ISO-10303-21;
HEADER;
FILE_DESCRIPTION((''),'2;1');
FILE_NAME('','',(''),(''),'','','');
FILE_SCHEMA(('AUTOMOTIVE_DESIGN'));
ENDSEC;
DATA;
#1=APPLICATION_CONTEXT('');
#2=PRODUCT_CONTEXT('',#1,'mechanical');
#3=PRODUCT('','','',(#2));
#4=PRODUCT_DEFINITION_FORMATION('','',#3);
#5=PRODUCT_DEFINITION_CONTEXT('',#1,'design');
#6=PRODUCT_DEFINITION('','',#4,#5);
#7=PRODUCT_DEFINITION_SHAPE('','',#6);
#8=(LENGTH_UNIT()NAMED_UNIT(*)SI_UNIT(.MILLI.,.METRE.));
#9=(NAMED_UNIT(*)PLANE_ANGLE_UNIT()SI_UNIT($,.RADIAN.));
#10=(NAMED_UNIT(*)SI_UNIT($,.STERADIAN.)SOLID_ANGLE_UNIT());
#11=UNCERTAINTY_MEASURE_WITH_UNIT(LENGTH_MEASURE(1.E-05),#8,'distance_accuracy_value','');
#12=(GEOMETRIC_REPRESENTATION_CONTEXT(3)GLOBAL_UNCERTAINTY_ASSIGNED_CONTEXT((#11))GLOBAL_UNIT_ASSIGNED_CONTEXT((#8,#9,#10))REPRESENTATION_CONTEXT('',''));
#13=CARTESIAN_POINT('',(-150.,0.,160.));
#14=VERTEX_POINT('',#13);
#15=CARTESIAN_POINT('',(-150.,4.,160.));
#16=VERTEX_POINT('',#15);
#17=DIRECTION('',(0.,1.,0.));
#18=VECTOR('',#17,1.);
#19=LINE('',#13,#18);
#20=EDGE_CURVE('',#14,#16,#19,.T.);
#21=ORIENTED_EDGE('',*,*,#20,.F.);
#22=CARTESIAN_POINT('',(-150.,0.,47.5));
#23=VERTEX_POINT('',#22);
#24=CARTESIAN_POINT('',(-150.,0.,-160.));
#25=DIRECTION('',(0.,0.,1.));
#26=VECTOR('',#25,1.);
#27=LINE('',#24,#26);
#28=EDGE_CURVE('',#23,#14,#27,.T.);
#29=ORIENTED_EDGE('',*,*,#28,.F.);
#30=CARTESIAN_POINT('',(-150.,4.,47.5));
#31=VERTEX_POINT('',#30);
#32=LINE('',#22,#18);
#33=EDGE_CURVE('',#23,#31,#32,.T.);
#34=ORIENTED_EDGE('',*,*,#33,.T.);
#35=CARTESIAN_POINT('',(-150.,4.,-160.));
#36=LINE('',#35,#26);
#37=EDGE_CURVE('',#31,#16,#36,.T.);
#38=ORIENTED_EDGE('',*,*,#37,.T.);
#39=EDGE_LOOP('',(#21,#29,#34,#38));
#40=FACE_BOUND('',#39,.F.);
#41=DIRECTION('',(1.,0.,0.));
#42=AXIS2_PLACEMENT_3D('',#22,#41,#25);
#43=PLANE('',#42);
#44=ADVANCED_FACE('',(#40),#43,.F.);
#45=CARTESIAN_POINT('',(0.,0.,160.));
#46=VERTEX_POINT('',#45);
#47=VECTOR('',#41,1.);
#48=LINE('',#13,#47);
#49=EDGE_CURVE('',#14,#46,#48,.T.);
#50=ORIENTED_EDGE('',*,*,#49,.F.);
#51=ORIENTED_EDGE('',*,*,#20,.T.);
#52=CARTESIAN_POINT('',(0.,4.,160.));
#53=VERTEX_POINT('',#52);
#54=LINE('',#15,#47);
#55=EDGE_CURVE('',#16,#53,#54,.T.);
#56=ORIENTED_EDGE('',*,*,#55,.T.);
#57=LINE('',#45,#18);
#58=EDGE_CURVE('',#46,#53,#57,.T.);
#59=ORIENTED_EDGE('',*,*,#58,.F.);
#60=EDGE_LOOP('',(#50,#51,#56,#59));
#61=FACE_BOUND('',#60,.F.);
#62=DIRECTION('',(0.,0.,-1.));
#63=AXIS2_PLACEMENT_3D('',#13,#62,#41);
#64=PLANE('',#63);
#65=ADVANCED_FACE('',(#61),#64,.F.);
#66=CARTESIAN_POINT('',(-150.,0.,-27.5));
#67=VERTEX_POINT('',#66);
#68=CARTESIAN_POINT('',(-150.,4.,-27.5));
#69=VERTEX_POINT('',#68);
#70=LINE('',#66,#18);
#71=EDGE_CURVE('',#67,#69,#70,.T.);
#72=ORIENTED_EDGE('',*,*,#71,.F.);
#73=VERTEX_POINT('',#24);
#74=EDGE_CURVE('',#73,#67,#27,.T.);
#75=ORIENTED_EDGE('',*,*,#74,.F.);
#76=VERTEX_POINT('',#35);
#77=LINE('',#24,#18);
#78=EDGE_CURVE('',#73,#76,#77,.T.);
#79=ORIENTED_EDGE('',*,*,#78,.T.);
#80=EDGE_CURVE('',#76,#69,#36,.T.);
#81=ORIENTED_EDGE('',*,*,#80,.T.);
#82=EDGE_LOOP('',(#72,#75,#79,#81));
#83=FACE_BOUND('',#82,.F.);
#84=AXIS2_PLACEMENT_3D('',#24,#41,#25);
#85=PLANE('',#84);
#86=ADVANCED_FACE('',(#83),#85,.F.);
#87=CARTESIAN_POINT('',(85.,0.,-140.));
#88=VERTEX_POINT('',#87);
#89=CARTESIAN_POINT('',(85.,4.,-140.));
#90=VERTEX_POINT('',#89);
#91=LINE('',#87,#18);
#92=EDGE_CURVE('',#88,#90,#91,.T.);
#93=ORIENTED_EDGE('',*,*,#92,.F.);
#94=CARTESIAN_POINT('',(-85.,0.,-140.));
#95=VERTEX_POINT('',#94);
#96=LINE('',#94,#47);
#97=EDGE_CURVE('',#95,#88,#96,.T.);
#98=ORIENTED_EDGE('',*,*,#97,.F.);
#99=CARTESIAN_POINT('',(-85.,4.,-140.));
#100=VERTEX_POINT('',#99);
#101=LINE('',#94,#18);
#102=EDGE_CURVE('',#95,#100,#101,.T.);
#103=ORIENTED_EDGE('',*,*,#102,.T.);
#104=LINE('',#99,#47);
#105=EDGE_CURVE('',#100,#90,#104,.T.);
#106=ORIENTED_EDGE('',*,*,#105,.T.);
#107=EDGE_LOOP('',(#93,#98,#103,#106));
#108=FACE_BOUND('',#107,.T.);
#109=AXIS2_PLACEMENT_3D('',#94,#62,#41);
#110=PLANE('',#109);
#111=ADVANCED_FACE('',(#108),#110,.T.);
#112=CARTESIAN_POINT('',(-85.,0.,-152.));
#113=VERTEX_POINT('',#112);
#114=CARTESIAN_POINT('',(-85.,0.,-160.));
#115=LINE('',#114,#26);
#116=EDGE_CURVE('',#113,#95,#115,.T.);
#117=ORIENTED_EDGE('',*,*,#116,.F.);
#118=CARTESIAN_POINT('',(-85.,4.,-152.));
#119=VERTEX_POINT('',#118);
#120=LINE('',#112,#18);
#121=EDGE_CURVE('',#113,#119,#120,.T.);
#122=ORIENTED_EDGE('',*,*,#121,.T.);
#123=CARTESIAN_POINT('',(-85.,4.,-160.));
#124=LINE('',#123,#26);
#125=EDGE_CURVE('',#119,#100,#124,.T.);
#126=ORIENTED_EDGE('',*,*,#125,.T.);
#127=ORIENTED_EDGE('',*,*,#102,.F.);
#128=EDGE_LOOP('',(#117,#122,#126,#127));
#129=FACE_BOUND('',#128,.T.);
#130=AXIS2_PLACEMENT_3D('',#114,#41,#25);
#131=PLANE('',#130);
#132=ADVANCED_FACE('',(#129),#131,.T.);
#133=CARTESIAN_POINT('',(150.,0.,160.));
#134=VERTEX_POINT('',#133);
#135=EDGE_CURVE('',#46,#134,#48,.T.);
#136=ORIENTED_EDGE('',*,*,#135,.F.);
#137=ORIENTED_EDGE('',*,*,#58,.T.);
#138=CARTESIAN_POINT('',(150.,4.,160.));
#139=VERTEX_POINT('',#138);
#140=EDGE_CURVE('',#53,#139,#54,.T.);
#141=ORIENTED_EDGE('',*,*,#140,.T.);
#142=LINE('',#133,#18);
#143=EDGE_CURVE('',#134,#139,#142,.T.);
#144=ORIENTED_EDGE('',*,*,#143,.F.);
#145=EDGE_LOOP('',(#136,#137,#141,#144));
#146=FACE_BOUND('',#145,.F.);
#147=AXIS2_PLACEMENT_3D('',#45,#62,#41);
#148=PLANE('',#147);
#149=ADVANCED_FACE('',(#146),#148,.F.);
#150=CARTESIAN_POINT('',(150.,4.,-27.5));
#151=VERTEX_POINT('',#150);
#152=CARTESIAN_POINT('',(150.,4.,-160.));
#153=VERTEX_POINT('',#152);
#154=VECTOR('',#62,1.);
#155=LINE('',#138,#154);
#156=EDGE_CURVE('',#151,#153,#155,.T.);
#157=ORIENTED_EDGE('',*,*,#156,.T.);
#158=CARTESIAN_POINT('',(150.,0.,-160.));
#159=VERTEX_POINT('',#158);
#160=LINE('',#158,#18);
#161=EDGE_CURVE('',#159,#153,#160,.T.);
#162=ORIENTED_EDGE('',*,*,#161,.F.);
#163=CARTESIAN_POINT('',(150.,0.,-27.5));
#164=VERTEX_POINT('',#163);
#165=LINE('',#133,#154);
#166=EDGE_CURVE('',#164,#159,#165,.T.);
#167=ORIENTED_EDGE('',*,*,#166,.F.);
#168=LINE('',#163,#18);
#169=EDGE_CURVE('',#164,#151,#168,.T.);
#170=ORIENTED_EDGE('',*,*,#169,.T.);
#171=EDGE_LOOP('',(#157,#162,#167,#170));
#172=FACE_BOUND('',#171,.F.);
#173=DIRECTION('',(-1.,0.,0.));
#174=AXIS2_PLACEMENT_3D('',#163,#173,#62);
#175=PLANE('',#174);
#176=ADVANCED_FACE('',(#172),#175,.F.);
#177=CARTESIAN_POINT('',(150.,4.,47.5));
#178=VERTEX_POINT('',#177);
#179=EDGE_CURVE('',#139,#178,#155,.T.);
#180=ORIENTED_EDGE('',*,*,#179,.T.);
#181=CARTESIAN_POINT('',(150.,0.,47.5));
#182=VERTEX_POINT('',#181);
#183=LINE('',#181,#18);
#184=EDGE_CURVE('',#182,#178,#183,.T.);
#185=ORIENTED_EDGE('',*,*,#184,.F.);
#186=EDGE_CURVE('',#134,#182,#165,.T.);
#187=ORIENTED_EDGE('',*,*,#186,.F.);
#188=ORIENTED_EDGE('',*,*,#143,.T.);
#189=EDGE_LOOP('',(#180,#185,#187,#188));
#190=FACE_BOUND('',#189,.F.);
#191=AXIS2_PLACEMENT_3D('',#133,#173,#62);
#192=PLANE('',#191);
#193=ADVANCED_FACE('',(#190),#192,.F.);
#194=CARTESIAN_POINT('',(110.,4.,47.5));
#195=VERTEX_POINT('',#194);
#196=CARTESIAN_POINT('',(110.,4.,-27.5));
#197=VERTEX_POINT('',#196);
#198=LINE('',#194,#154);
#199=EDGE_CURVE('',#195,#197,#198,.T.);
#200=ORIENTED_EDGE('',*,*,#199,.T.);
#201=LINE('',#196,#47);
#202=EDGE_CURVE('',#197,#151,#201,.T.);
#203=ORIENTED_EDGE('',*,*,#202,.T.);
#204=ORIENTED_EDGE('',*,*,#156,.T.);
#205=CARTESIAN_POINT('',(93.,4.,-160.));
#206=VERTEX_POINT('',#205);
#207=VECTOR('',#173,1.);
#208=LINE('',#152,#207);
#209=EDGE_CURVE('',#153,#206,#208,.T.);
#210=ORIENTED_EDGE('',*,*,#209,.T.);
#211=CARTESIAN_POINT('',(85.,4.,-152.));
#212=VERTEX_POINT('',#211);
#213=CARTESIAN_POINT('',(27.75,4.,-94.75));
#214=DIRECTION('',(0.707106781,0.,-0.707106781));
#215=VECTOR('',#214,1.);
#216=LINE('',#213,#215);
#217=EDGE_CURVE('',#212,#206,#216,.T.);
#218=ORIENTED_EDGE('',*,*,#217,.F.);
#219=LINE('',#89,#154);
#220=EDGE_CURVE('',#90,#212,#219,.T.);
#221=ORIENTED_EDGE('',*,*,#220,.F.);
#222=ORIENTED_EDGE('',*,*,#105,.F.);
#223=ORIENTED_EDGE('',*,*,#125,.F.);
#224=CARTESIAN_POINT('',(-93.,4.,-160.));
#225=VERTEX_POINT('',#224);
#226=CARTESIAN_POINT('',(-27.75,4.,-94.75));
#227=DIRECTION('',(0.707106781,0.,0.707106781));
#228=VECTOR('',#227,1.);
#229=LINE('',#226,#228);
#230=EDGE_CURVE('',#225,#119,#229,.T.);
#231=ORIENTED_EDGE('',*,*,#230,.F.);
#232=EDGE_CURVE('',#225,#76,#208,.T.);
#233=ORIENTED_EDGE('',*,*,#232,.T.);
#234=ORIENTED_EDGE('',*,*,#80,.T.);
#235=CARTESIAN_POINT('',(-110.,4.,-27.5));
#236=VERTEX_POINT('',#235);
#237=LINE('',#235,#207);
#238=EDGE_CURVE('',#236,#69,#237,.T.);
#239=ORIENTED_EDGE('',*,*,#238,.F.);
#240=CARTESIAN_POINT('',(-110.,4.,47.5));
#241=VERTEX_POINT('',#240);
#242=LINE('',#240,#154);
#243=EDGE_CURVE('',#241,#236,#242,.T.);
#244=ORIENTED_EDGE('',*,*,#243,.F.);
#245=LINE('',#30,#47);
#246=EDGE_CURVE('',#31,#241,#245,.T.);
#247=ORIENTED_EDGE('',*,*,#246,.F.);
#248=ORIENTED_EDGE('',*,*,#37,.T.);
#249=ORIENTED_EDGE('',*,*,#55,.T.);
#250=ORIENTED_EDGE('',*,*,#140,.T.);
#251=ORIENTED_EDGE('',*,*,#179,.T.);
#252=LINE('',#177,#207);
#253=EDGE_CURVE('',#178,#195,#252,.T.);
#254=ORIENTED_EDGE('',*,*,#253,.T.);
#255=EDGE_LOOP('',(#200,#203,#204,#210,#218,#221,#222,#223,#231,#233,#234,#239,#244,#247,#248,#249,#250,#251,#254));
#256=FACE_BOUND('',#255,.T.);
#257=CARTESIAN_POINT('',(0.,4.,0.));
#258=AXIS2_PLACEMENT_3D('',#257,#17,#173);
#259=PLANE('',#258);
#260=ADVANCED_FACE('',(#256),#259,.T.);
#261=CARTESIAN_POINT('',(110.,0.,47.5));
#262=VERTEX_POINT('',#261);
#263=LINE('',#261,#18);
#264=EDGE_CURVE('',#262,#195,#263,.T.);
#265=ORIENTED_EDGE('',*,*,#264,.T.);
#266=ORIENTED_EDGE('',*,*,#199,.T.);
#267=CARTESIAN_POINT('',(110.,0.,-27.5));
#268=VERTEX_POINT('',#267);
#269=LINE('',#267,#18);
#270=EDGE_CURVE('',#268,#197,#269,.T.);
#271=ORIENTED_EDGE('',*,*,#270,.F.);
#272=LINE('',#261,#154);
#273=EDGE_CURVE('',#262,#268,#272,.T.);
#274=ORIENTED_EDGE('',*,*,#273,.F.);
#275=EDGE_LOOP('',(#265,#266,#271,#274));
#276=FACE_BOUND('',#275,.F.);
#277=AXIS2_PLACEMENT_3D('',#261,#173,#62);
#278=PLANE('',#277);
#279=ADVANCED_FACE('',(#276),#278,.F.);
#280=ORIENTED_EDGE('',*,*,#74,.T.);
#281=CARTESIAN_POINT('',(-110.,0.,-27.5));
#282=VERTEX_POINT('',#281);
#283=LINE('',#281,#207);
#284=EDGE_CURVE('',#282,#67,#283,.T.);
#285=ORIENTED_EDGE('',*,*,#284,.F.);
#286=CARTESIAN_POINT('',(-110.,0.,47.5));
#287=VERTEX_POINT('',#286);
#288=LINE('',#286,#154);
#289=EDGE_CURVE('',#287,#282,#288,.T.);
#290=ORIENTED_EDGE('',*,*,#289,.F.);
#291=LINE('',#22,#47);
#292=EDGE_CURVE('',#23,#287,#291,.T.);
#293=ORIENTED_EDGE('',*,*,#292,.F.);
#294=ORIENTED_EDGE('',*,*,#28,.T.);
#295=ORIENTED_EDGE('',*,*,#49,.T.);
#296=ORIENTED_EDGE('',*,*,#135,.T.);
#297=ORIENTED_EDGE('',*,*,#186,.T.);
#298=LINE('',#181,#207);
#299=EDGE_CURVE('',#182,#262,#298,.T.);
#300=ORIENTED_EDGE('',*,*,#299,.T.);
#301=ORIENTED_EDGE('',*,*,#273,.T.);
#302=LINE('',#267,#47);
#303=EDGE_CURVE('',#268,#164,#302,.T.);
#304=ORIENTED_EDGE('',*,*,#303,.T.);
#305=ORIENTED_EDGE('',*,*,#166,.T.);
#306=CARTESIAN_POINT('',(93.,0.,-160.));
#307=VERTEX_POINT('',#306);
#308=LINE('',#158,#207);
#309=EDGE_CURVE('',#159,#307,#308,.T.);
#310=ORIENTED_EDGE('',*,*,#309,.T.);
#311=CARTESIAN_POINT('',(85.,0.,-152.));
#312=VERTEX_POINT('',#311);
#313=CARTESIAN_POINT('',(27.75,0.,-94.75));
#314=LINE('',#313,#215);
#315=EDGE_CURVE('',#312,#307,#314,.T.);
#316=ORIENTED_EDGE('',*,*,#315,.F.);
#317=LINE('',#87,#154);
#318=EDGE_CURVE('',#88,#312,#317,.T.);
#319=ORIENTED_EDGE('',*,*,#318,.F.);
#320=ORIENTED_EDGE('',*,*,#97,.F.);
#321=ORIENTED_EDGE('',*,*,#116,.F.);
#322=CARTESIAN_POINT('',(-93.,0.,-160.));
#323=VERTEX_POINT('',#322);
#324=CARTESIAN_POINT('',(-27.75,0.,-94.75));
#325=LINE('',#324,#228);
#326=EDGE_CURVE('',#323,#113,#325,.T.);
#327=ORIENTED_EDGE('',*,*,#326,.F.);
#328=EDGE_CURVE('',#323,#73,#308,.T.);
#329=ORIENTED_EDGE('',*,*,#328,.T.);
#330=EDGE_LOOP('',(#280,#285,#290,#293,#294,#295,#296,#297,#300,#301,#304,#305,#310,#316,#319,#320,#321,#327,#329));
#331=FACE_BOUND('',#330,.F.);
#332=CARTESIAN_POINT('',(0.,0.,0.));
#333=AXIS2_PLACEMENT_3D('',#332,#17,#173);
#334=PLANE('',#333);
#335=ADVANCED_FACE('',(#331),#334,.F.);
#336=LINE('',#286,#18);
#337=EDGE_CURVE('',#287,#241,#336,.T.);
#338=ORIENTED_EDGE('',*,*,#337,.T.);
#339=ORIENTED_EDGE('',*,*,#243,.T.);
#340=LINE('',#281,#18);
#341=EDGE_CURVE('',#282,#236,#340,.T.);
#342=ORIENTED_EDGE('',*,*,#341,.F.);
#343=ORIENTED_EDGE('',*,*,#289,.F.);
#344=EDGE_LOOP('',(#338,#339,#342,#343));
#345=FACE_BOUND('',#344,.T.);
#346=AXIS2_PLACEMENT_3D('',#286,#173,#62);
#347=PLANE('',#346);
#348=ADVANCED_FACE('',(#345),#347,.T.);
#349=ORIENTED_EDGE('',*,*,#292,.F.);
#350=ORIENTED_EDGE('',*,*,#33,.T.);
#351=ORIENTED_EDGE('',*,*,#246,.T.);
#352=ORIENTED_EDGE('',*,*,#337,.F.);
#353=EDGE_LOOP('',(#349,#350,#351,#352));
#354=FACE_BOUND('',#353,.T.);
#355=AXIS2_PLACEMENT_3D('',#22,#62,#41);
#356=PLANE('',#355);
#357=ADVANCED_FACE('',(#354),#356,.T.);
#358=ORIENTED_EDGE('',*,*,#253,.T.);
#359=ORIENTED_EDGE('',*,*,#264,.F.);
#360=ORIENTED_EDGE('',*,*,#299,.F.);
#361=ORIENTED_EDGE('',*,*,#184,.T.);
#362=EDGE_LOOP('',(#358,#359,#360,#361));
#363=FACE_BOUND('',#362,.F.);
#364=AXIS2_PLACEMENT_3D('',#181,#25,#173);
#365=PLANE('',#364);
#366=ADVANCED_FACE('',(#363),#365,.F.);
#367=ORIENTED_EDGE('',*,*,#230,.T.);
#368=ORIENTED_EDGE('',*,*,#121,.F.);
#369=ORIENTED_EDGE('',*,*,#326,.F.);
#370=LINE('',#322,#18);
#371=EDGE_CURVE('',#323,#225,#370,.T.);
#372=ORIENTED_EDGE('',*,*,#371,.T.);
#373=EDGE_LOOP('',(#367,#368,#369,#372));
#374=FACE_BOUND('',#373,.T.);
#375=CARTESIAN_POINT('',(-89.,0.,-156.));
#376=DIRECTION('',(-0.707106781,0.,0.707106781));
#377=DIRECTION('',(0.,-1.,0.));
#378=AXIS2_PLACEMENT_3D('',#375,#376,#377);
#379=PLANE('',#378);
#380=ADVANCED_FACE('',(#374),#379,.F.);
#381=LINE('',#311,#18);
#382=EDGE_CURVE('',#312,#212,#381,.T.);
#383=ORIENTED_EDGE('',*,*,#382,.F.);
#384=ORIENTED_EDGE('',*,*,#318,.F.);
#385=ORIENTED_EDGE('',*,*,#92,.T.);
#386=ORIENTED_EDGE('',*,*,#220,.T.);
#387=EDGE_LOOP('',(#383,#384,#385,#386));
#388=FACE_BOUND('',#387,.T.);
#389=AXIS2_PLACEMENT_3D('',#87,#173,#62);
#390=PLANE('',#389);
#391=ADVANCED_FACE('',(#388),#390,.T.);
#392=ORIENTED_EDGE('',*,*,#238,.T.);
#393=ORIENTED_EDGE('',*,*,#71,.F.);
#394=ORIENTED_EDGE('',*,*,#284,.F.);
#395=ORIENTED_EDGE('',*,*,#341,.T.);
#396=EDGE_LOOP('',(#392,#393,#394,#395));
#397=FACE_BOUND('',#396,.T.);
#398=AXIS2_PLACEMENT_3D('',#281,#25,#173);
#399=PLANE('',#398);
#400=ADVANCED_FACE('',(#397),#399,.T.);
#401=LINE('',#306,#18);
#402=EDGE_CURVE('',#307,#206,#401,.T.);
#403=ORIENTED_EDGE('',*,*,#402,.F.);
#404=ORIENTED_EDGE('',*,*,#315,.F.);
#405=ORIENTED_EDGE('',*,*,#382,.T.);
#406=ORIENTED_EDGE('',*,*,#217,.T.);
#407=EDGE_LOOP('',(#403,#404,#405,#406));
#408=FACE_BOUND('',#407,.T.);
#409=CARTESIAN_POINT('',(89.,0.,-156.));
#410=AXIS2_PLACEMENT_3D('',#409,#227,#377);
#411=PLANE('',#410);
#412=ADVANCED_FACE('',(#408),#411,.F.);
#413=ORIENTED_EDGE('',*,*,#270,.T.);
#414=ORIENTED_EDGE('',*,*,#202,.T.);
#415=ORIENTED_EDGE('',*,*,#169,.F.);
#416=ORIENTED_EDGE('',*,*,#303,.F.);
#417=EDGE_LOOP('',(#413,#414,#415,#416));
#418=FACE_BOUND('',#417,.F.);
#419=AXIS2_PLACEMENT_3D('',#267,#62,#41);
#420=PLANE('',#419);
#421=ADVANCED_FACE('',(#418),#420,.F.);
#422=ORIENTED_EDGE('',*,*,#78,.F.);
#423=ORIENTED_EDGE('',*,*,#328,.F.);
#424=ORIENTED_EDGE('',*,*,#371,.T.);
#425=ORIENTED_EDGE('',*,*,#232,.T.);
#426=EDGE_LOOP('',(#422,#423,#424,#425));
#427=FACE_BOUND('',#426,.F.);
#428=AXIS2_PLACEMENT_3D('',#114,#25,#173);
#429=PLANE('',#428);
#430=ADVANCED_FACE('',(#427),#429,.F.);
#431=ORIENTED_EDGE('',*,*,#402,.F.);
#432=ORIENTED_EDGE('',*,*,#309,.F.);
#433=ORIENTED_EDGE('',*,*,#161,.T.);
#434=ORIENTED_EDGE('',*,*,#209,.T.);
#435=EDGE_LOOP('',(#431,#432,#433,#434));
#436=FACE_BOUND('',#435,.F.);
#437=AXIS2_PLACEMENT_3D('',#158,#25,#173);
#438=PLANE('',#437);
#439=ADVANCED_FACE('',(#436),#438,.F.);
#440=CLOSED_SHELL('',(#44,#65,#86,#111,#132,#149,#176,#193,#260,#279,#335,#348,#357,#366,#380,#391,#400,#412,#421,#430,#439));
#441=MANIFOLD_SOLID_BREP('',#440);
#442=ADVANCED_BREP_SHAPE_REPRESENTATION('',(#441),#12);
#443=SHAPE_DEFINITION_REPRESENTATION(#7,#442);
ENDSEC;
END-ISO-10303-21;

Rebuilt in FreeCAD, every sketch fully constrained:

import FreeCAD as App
import Part
import Sketcher
from FreeCAD import Vector
Q = App.Units.Quantity


def edges_at(feature, points):
    """Names of the edges that pass closest to the given points."""
    edges = feature.Shape.Edges
    near = lambda p: min(range(len(edges)), key=lambda i: edges[i].distToShape(Part.Vertex(*p))[0])
    return sorted({f"Edge{near(p) + 1}" for p in points})

doc = App.newDocument("Part")
params = doc.addObject("Spreadsheet::Sheet", "Params")
for row, (alias, value) in enumerate([
    ("sketch1_width", "300 mm"),
    ("sketch1_width2", "40 mm"),
    ("sketch1_width3", "170 mm"),
    ("sketch1_height", "75 mm"),
    ("sketch1_height2", "20 mm"),
    ("pad1_length", "4 mm"),
    ("chamfer_size", "8 mm"),
], start=1):
    params.set(f"A{row}", alias)
    params.set(f"B{row}", "=" + value)
    params.setAlias(f"B{row}", alias)

body = doc.addObject("PartDesign::Body", "Body")

sketch1 = body.newObject("Sketcher::SketchObject", "Sketch")
sketch1.AttachmentSupport = (doc.getObject("XZ_Plane"), [""])
sketch1.MapMode = "FlatFace"
sketch1.addGeometry([
    Part.LineSegment(Vector(-150, 47.5, 0), Vector(-150, 160, 0)),
    Part.LineSegment(Vector(-150, 160, 0), Vector(150, 160, 0)),
    Part.LineSegment(Vector(150, 160, 0), Vector(150, 47.5, 0)),
    Part.LineSegment(Vector(150, 47.5, 0), Vector(110, 47.5, 0)),
    Part.LineSegment(Vector(110, 47.5, 0), Vector(110, -27.5, 0)),
    Part.LineSegment(Vector(110, -27.5, 0), Vector(150, -27.5, 0)),
    Part.LineSegment(Vector(150, -27.5, 0), Vector(150, -160, 0)),
    Part.LineSegment(Vector(150, -160, 0), Vector(85, -160, 0)),
    Part.LineSegment(Vector(85, -160, 0), Vector(85, -140, 0)),
    Part.LineSegment(Vector(85, -140, 0), Vector(-85, -140, 0)),
    Part.LineSegment(Vector(-85, -140, 0), Vector(-85, -160, 0)),
    Part.LineSegment(Vector(-85, -160, 0), Vector(-150, -160, 0)),
    Part.LineSegment(Vector(-150, -160, 0), Vector(-150, -27.5, 0)),
    Part.LineSegment(Vector(-150, -27.5, 0), Vector(-110, -27.5, 0)),
    Part.LineSegment(Vector(-110, -27.5, 0), Vector(-110, 47.5, 0)),
    Part.LineSegment(Vector(-110, 47.5, 0), Vector(-150, 47.5, 0)),
], False)
sketch1.addConstraint([
    Sketcher.Constraint("Coincident", 0, 2, 1, 1),
    Sketcher.Constraint("Coincident", 1, 2, 2, 1),
    Sketcher.Constraint("Coincident", 2, 2, 3, 1),
    Sketcher.Constraint("Coincident", 3, 2, 4, 1),
    Sketcher.Constraint("Coincident", 4, 2, 5, 1),
    Sketcher.Constraint("Coincident", 5, 2, 6, 1),
    Sketcher.Constraint("Coincident", 6, 2, 7, 1),
    Sketcher.Constraint("Coincident", 7, 2, 8, 1),
    Sketcher.Constraint("Coincident", 8, 2, 9, 1),
    Sketcher.Constraint("Coincident", 9, 2, 10, 1),
    Sketcher.Constraint("Coincident", 10, 2, 11, 1),
    Sketcher.Constraint("Coincident", 11, 2, 12, 1),
    Sketcher.Constraint("Coincident", 12, 2, 13, 1),
    Sketcher.Constraint("Coincident", 13, 2, 14, 1),
    Sketcher.Constraint("Coincident", 14, 2, 15, 1),
    Sketcher.Constraint("Coincident", 15, 2, 0, 1),
    Sketcher.Constraint("Vertical", 0),
    Sketcher.Constraint("Horizontal", 1),
    Sketcher.Constraint("Vertical", 2),
    Sketcher.Constraint("Horizontal", 3),
    Sketcher.Constraint("Vertical", 4),
    Sketcher.Constraint("Horizontal", 5),
    Sketcher.Constraint("Vertical", 6),
    Sketcher.Constraint("Horizontal", 7),
    Sketcher.Constraint("Vertical", 8),
    Sketcher.Constraint("Horizontal", 9),
    Sketcher.Constraint("Vertical", 10),
    Sketcher.Constraint("Horizontal", 11),
    Sketcher.Constraint("Vertical", 12),
    Sketcher.Constraint("Horizontal", 13),
    Sketcher.Constraint("Vertical", 14),
    Sketcher.Constraint("Horizontal", 15),
    Sketcher.Constraint("Symmetric", 0, 2, 6, 2, -1, 1),
    Sketcher.Constraint("Symmetric", 1, 2, 11, 2, -1, 1),
    Sketcher.Constraint("Symmetric", 5, 2, 12, 2, -2),
    Sketcher.Constraint("Symmetric", 3, 2, 14, 2, -2),
    Sketcher.Constraint("Equal", 7, 11),
    Sketcher.Constraint("DistanceX", 1, 1, 1, 2, Q("300 mm")),
    Sketcher.Constraint("DistanceX", 3, 2, 3, 1, Q("40 mm")),
    Sketcher.Constraint("DistanceX", 9, 2, 9, 1, Q("170 mm")),
    Sketcher.Constraint("DistanceY", 4, 2, 4, 1, Q("75 mm")),
    Sketcher.Constraint("DistanceY", 8, 1, 8, 2, Q("20 mm")),
    Sketcher.Constraint("DistanceY", 0, 1, 0, 2, Q("112.5 mm")),
    Sketcher.Constraint("DistanceY", 6, 2, 1, 2, Q("320 mm")),
])
sketch1.setExpression("Constraints[37]", "Params.sketch1_width")
sketch1.setExpression("Constraints[38]", "Params.sketch1_width2")
sketch1.setExpression("Constraints[39]", "Params.sketch1_width3")
sketch1.setExpression("Constraints[40]", "Params.sketch1_height")
sketch1.setExpression("Constraints[41]", "Params.sketch1_height2")
pad1 = body.newObject("PartDesign::Pad", "Pad")
pad1.Profile = sketch1
pad1.setExpression("Length", "Params.pad1_length")
pad1.Reversed = True
doc.recompute()

chamfer = body.newObject("PartDesign::Chamfer", "Chamfer")
chamfer.Base = (pad1, edges_at(pad1, [(-85, 2, -160), (85, 2, -160)]))
chamfer.setExpression("Size", "Params.chamfer_size")

doc.recompute()
